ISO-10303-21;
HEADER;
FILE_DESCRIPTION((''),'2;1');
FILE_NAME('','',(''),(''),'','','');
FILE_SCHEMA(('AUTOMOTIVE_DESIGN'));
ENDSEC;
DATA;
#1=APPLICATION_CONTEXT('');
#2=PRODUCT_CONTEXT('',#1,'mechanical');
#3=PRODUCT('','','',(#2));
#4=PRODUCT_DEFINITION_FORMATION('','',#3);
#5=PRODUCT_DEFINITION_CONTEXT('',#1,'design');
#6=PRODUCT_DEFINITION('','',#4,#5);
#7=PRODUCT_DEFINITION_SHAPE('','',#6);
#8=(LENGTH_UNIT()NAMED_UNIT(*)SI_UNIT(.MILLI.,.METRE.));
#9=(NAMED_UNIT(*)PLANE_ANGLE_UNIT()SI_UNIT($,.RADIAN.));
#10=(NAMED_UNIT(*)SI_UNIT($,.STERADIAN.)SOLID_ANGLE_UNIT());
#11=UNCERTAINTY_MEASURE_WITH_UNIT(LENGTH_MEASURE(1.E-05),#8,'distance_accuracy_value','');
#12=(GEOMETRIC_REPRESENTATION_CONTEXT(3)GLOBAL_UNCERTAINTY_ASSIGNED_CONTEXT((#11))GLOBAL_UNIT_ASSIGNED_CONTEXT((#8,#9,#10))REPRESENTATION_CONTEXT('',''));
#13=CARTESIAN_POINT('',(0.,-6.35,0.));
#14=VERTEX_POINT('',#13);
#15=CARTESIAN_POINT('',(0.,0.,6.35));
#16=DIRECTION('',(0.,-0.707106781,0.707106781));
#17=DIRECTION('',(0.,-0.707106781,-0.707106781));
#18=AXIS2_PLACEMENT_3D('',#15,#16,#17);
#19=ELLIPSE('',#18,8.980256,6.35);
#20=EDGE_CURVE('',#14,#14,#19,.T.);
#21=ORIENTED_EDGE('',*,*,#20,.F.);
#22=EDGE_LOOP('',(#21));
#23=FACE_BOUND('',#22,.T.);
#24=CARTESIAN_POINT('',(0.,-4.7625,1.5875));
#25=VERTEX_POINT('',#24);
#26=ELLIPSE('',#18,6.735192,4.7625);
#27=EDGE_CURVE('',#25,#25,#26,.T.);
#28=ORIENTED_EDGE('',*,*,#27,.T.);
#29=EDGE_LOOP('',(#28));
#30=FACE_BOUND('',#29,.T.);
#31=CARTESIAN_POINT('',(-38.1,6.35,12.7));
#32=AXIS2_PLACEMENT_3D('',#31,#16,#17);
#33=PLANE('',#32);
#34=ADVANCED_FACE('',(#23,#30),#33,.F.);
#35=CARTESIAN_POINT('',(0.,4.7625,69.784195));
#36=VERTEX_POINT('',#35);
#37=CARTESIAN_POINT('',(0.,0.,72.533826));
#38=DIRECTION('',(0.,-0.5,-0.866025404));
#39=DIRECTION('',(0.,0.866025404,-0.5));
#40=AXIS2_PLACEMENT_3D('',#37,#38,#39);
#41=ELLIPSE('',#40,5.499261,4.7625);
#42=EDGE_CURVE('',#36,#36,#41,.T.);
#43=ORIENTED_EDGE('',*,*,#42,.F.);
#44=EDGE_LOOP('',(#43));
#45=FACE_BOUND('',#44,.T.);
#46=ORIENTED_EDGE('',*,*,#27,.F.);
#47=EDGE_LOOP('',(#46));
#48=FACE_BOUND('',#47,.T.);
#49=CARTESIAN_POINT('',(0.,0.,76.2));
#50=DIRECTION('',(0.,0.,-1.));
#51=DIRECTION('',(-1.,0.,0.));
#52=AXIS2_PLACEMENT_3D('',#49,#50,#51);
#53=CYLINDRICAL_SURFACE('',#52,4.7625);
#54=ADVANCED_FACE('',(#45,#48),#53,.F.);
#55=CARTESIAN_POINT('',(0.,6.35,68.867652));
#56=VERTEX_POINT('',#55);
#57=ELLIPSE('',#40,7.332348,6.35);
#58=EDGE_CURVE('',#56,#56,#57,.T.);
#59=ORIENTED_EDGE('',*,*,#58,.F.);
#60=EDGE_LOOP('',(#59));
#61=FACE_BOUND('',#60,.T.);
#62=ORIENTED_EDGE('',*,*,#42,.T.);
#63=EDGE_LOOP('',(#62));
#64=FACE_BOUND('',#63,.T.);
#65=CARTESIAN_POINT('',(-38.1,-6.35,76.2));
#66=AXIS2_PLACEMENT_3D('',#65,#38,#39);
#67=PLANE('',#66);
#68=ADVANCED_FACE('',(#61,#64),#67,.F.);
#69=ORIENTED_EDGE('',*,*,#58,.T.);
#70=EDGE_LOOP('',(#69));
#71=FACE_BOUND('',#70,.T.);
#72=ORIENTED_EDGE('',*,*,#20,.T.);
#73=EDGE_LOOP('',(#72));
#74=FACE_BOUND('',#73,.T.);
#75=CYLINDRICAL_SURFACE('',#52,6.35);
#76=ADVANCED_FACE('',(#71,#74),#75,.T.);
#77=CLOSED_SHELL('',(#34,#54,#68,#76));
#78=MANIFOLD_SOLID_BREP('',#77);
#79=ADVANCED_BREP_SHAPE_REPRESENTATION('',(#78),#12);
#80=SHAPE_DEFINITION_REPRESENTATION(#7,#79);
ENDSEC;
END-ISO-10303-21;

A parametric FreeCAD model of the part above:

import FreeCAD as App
import Part
import Sketcher

V = App.Vector
Q = App.Units.Quantity


def add_polygon(sketch, points):
    """Adds a closed chain of lines whose ends are joined by coincident constraints."""
    first, n = sketch.GeometryCount, len(points)
    for a, b in zip(points, points[1:] + points[:1]):
        sketch.addGeometry(Part.LineSegment(App.Vector(*a, 0), App.Vector(*b, 0)), False)
    for i in range(n):
        sketch.addConstraint(Sketcher.Constraint("Coincident", first + i, 2, first + (i + 1) % n, 1))

doc = App.newDocument("Part")
params = doc.addObject("Spreadsheet::Sheet", "Params")
for row, (alias, value) in enumerate([
    ("sketch1_diameter", "0.5 in"),
    ("sketch1_diameter2", "0.375 in"),
    ("pad1_length", "3 in"),
    ("sketch2_width", "0.5 in"),
    ("pocket1_length", "3 in"),
    ("sketch3_width", "0.5 in"),
    ("pocket2_length", "3 in"),
], start=1):
    params.set(f"A{row}", alias)
    params.set(f"B{row}", "=" + value)
    params.setAlias(f"B{row}", alias)

body = doc.addObject("PartDesign::Body", "Body")

# Sketch on XY plane
sketch1 = body.newObject("Sketcher::SketchObject", "Sketch")
sketch1.AttachmentSupport = (doc.getObject("XY_Plane"), [""])
sketch1.MapMode = "FlatFace"
sketch1.addGeometry(Part.Circle(V(0, 0, 0), V(0, 0, 1), 6.3), False)
sketch1.addGeometry(Part.Circle(V(0, 0, 0), V(0, 0, 1), 4.8), False)
sketch1.addConstraint(Sketcher.Constraint("Coincident", 0, 3, -1, 1))
sketch1.addConstraint(Sketcher.Constraint("Coincident", 1, 3, -1, 1))
sketch1.addConstraint(Sketcher.Constraint("Diameter", 0, Q("0.5 in")))
sketch1.addConstraint(Sketcher.Constraint("Diameter", 1, Q("0.375 in")))
sketch1.setExpression("Constraints[2]", "Params.sketch1_diameter")
sketch1.setExpression("Constraints[3]", "Params.sketch1_diameter2")
pad1 = body.newObject("PartDesign::Pad", "Pad")
pad1.Profile = sketch1
pad1.setExpression("Length", "Params.pad1_length")

# Sketch on YZ plane
sketch2 = body.newObject("Sketcher::SketchObject", "Sketch001")
sketch2.AttachmentSupport = (doc.getObject("YZ_Plane"), [""])
sketch2.MapMode = "FlatFace"
add_polygon(sketch2, [(-6, 76), (6, 69), (6, 76)])  # lines 0-2
sketch2.addConstraint(Sketcher.Constraint("Vertical", 1))
sketch2.addConstraint(Sketcher.Constraint("Horizontal", 2))
sketch2.addConstraint(Sketcher.Constraint("DistanceX", 2, 2, 2, 1, Q("0.5 in")))
sketch2.addConstraint(Sketcher.Constraint("DistanceY", -1, 1, 1, 2, Q("3 in")))
sketch2.addConstraint(Sketcher.Constraint("Angle", 0, Q("-30 deg")))
sketch2.addConstraint(Sketcher.Constraint("DistanceX", -1, 1, 0, 2, Q("0.25 in")))
sketch2.setExpression("Constraints[5]", "Params.sketch2_width")
pocket1 = body.newObject("PartDesign::Pocket", "Pocket")
pocket1.Profile = sketch2
pocket1.setExpression("Length", "Params.pocket1_length")
pocket1.Midplane = True

# Sketch on YZ plane
sketch3 = body.newObject("Sketcher::SketchObject", "Sketch002")
sketch3.AttachmentSupport = (doc.getObject("YZ_Plane"), [""])
sketch3.MapMode = "FlatFace"
add_polygon(sketch3, [(6, 13), (-6, 0), (6, 0)])  # lines 0-2
sketch3.addConstraint(Sketcher.Constraint("Horizontal", 1))
sketch3.addConstraint(Sketcher.Constraint("Vertical", 2))
sketch3.addConstraint(Sketcher.Constraint("Symmetric", 0, 2, 1, 2, -1, 1))
sketch3.addConstraint(Sketcher.Constraint("Equal", 1, 2))
sketch3.addConstraint(Sketcher.Constraint("DistanceX", 1, 1, 1, 2, Q("0.5 in")))
sketch3.setExpression("Constraints[7]", "Params.sketch3_width")
pocket2 = body.newObject("PartDesign::Pocket", "Pocket001")
pocket2.Profile = sketch3
pocket2.setExpression("Length", "Params.pocket2_length")
pocket2.Midplane = True

doc.recompute()
